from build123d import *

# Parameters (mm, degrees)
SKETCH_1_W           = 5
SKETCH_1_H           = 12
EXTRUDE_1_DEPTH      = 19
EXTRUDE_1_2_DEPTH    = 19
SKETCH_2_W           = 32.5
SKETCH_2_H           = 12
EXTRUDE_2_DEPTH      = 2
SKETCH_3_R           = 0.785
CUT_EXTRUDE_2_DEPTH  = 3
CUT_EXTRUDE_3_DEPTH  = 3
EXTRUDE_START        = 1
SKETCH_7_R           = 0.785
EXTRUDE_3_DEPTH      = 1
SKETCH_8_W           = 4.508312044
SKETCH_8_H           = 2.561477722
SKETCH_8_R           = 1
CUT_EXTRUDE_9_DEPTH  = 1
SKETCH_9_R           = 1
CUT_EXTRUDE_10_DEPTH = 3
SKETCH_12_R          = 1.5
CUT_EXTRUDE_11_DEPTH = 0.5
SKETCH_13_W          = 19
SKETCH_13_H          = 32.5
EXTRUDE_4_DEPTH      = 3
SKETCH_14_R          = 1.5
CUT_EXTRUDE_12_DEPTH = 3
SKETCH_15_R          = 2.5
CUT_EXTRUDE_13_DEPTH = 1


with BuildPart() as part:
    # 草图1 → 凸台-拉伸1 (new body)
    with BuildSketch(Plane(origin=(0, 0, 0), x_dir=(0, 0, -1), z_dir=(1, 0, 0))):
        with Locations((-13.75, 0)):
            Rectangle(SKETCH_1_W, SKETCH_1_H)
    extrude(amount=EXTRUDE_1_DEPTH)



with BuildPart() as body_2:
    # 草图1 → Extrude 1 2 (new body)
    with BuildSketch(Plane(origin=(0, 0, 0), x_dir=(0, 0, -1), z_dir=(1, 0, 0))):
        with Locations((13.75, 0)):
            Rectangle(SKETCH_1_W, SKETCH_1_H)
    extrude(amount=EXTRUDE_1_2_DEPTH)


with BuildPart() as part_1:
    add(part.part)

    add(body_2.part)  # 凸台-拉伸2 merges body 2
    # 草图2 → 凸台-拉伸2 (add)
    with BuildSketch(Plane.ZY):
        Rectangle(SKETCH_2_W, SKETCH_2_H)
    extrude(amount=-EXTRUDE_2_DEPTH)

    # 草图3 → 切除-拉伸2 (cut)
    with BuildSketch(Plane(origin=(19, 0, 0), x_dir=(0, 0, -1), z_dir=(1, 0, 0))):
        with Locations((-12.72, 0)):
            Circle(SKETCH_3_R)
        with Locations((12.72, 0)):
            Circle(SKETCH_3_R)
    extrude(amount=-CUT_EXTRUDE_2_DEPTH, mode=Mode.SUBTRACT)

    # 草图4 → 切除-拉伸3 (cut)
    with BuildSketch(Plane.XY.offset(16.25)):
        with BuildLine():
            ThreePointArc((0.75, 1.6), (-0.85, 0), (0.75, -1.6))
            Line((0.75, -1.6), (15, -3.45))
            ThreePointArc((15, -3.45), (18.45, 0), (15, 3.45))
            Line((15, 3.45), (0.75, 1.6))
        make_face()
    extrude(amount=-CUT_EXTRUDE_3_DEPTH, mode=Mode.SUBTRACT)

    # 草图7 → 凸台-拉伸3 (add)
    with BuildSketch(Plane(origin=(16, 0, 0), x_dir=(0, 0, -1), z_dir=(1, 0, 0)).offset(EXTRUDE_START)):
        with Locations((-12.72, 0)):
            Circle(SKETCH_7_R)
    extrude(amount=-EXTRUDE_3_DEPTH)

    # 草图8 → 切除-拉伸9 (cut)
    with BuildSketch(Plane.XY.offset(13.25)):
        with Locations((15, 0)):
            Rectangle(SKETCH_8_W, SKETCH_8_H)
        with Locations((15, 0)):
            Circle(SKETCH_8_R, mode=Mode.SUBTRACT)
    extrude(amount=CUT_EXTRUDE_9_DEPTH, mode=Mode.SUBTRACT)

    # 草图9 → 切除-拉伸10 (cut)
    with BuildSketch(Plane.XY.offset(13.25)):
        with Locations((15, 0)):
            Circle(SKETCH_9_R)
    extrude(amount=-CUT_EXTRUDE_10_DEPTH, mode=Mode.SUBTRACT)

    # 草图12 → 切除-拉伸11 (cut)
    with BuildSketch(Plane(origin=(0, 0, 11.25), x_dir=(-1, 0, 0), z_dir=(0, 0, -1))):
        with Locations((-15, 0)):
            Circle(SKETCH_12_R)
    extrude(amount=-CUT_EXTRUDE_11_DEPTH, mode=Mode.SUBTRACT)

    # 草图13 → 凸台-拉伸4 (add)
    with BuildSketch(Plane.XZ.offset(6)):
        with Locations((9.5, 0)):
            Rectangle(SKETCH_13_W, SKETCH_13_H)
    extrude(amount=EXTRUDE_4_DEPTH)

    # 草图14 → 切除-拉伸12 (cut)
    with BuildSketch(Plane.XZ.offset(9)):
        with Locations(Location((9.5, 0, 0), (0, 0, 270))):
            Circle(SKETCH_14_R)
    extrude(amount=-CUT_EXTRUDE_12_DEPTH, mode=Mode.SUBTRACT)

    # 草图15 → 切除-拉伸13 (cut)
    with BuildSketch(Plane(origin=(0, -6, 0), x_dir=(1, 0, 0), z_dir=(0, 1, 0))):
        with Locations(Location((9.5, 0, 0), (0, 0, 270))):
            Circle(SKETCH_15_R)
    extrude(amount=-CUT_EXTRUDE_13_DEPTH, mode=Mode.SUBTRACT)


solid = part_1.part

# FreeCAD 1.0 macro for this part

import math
import FreeCAD as App
import Part
import Sketcher
from FreeCAD import Vector


def add_polygon(sketch, points):
    """Adds a closed chain of lines whose ends are joined by coincident constraints."""
    first, n = sketch.GeometryCount, len(points)
    for a, b in zip(points, points[1:] + points[:1]):
        sketch.addGeometry(Part.LineSegment(App.Vector(*a, 0), App.Vector(*b, 0)), False)
    for i in range(n):
        sketch.addConstraint(Sketcher.Constraint("Coincident", first + i, 2, first + (i + 1) % n, 1))

doc = App.newDocument("Part")
body = doc.addObject("PartDesign::Body", "Body")

# Sketch on YZ plane
sketch1 = body.newObject("Sketcher::SketchObject", "Sketch")
sketch1.AttachmentSupport = (doc.getObject("YZ_Plane"), [""])
sketch1.MapMode = "FlatFace"
add_polygon(sketch1, [(6, 16), (-6, 16), (-6, 11), (6, 11)])  # lines 0-3
sketch1.addConstraint([
    Sketcher.Constraint("Horizontal", 0),
    Sketcher.Constraint("Vertical", 1),
    Sketcher.Constraint("Horizontal", 2),
    Sketcher.Constraint("Vertical", 3),
    Sketcher.Constraint("DistanceX", 0, 2, 0, 1, 12.0),
    Sketcher.Constraint("DistanceY", 1, 2, 1, 1, 5.0),
    Sketcher.Constraint("DistanceX", 0, 2, -1, 1, 6.0),
    Sketcher.Constraint("DistanceY", -1, 1, 0, 2, 16.25),
])
pad1 = body.newObject("PartDesign::Pad", "Pad")
pad1.Profile = sketch1
pad1.Length = 19
body2 = doc.addObject("PartDesign::Body", "Body001")

# Sketch on YZ plane
sketch2 = body2.newObject("Sketcher::SketchObject", "Sketch001")
sketch2.AttachmentSupport = (doc.getObject("YZ_Plane001"), [""])
sketch2.MapMode = "FlatFace"
add_polygon(sketch2, [(6, -11), (-6, -11), (-6, -16), (6, -16)])  # lines 0-3
sketch2.addConstraint([
    Sketcher.Constraint("Horizontal", 0),
    Sketcher.Constraint("Vertical", 1),
    Sketcher.Constraint("Horizontal", 2),
    Sketcher.Constraint("Vertical", 3),
    Sketcher.Constraint("DistanceX", 0, 2, 0, 1, 12.0),
    Sketcher.Constraint("DistanceY", 1, 2, 1, 1, 5.0),
    Sketcher.Constraint("DistanceX", 0, 2, -1, 1, 6.0),
    Sketcher.Constraint("DistanceY", 0, 2, -1, 1, 11.25),
])
pad2 = body2.newObject("PartDesign::Pad", "Pad001")
pad2.Profile = sketch2
pad2.Length = 19
body.AllowCompound = True
doc.recompute()

boolean = body.newObject("PartDesign::Boolean", "Boolean")
boolean.Type = "Fuse"
boolean.addObjects([body2])

# Sketch on YZ plane
sketch3 = body.newObject("Sketcher::SketchObject", "Sketch002")
sketch3.AttachmentSupport = (doc.getObject("YZ_Plane"), [""])
sketch3.MapMode = "FlatFace"
add_polygon(sketch3, [(6, -16), (-6, -16), (-6, 16), (6, 16)])  # lines 0-3
sketch3.addConstraint([
    Sketcher.Constraint("Horizontal", 0),
    Sketcher.Constraint("Vertical", 1),
    Sketcher.Constraint("Horizontal", 2),
    Sketcher.Constraint("Vertical", 3),
    Sketcher.Constraint("Symmetric", 0, 2, 2, 2, -1, 1),
    Sketcher.Constraint("DistanceX", 0, 2, 0, 1, 12.0),
    Sketcher.Constraint("DistanceY", 1, 1, 1, 2, 32.5),
])
pad3 = body.newObject("PartDesign::Pad", "Pad002")
pad3.Profile = sketch3
pad3.Length = 2

# Sketch on YZ plane
sketch4 = body.newObject("Sketcher::SketchObject", "Sketch003")
sketch4.AttachmentSupport = (doc.getObject("YZ_Plane"), [""])
sketch4.MapMode = "FlatFace"
sketch4.AttachmentOffset = App.Placement(Vector(0, 0, 19), App.Rotation())
sketch4.addGeometry([
    Part.Circle(Vector(0, 12.7, 0), Vector(0, 0, 1), 0.8),
    Part.Circle(Vector(0, -12.7, 0), Vector(0, 0, 1), 0.8),
], False)
sketch4.addConstraint([
    Sketcher.Constraint("Equal", 0, 1),
    Sketcher.Constraint("Symmetric", 0, 3, 1, 3, -1, 1),
    Sketcher.Constraint("PointOnObject", 0, 3, -2),
    Sketcher.Constraint("Diameter", 0, 1.57),
    Sketcher.Constraint("DistanceY", -1, 1, 0, 3, 12.72),
])
pocket1 = body.newObject("PartDesign::Pocket", "Pocket")
pocket1.Profile = sketch4
pocket1.Length = 3

# Sketch on XY plane
sketch5 = body.newObject("Sketcher::SketchObject", "Sketch004")
sketch5.AttachmentSupport = (doc.getObject("XY_Plane"), [""])
sketch5.MapMode = "FlatFace"
sketch5.AttachmentOffset = App.Placement(Vector(0, 0, 16.25), App.Rotation())
sketch5.addGeometry([
    Part.ArcOfCircle(Part.Circle(Vector(0.8, 0, 0), Vector(0, 0, 1), 1.6), math.radians(90), math.radians(270)),
    Part.LineSegment(Vector(0.8, -1.6, 0), Vector(15, -3.5, 0)),
    Part.ArcOfCircle(Part.Circle(Vector(15, 0, 0), Vector(0, 0, 1), 3.5), math.radians(-90), math.radians(90)),
    Part.LineSegment(Vector(15, 3.5, 0), Vector(0.8, 1.6, 0)),
], False)
sketch5.addConstraint([
    Sketcher.Constraint("Coincident", 0, 2, 1, 1),
    Sketcher.Constraint("Coincident", 1, 2, 2, 1),
    Sketcher.Constraint("Coincident", 2, 2, 3, 1),
    Sketcher.Constraint("Coincident", 3, 2, 0, 1),
    Sketcher.Constraint("Symmetric", 1, 2, 2, 2, -1),
    Sketcher.Constraint("Symmetric", 0, 2, 3, 2, -1),
    Sketcher.Constraint("Vertical", 2, 3, 1, 2),
    Sketcher.Constraint("Radius", 0, 1.6),
    Sketcher.Constraint("Radius", 2, 3.45),
    Sketcher.Constraint("DistanceX", -1, 1, 2, 3, 15.0),
    Sketcher.Constraint("DistanceX", -1, 1, 0, 3, 0.75),
    Sketcher.Constraint("DistanceX", -1, 1, 0, 2, 0.75),
])
pocket2 = body.newObject("PartDesign::Pocket", "Pocket001")
pocket2.Profile = sketch5
pocket2.Length = 3

# Sketch on YZ plane
sketch6 = body.newObject("Sketcher::SketchObject", "Sketch005")
sketch6.AttachmentSupport = (doc.getObject("YZ_Plane"), [""])
sketch6.MapMode = "FlatFace"
sketch6.AttachmentOffset = App.Placement(Vector(0, 0, 17), App.Rotation())
sketch6.addGeometry(Part.Circle(Vector(0, 12.7, 0), Vector(0, 0, 1), 0.8), False)
sketch6.addConstraint([
    Sketcher.Constraint("PointOnObject", 0, 3, -2),
    Sketcher.Constraint("Diameter", 0, 1.57),
    Sketcher.Constraint("DistanceY", -1, 1, 0, 3, 12.72),
])
pad4 = body.newObject("PartDesign::Pad", "Pad003")
pad4.Profile = sketch6
pad4.Length = 1
pad4.Reversed = True

# Sketch on XY plane
sketch7 = body.newObject("Sketcher::SketchObject", "Sketch006")
sketch7.AttachmentSupport = (doc.getObject("XY_Plane"), [""])
sketch7.MapMode = "FlatFace"
sketch7.AttachmentOffset = App.Placement(Vector(0, 0, 13.25), App.Rotation())
add_polygon(sketch7, [(12.7, 1.3), (12.7, -1.3), (17.3, -1.3), (17.3, 1.3)])  # lines 0-3
sketch7.addGeometry(Part.Circle(Vector(15, 0, 0), Vector(0, 0, 1), 1), False)  # 4
sketch7.addConstraint([
    Sketcher.Constraint("Vertical", 0),
    Sketcher.Constraint("Horizontal", 1),
    Sketcher.Constraint("Vertical", 2),
    Sketcher.Constraint("Horizontal", 3),
    Sketcher.Constraint("PointOnObject", 4, 3, -1),
    Sketcher.Constraint("Diameter", 4, 2.0),
    Sketcher.Constraint("DistanceX", -1, 1, 4, 3, 15.0),
    Sketcher.Constraint("DistanceX", 1, 1, 1, 2, 4.508312),
    Sketcher.Constraint("DistanceY", 0, 2, 0, 1, 2.561478),
    Sketcher.Constraint("DistanceY", 0, 2, -1, 1, 1.280739),
    Sketcher.Constraint("DistanceX", -1, 1, 0, 2, 12.745844),
])
pocket3 = body.newObject("PartDesign::Pocket", "Pocket002")
pocket3.Profile = sketch7
pocket3.Length = 1
pocket3.Reversed = True

# Sketch on XY plane
sketch8 = body.newObject("Sketcher::SketchObject", "Sketch007")
sketch8.AttachmentSupport = (doc.getObject("XY_Plane"), [""])
sketch8.MapMode = "FlatFace"
sketch8.AttachmentOffset = App.Placement(Vector(0, 0, 13.25), App.Rotation())
sketch8.addGeometry(Part.Circle(Vector(15, 0, 0), Vector(0, 0, 1), 1), False)
sketch8.addConstraint([
    Sketcher.Constraint("PointOnObject", 0, 3, -1),
    Sketcher.Constraint("Diameter", 0, 2.0),
    Sketcher.Constraint("DistanceX", -1, 1, 0, 3, 15.0),
])
pocket4 = body.newObject("PartDesign::Pocket", "Pocket003")
pocket4.Profile = sketch8
pocket4.Length = 3

# Sketch on XY plane
sketch9 = body.newObject("Sketcher::SketchObject", "Sketch008")
sketch9.AttachmentSupport = (doc.getObject("XY_Plane"), [""])
sketch9.MapMode = "FlatFace"
sketch9.AttachmentOffset = App.Placement(Vector(0, 0, 11.25), App.Rotation())
sketch9.addGeometry(Part.Circle(Vector(15, 0, 0), Vector(0, 0, 1), 1.5), False)
sketch9.addConstraint([
    Sketcher.Constraint("PointOnObject", 0, 3, -1),
    Sketcher.Constraint("Diameter", 0, 3.0),
    Sketcher.Constraint("DistanceX", -1, 1, 0, 3, 15.0),
])
pocket5 = body.newObject("PartDesign::Pocket", "Pocket004")
pocket5.Profile = sketch9
pocket5.Length = 0.5
pocket5.Reversed = True

# Sketch on XZ plane
sketch10 = body.newObject("Sketcher::SketchObject", "Sketch009")
sketch10.AttachmentSupport = (doc.getObject("XZ_Plane"), [""])
sketch10.MapMode = "FlatFace"
sketch10.AttachmentOffset = App.Placement(Vector(0, 0, 6), App.Rotation())
add_polygon(sketch10, [(0, 16), (0, -16), (19, -16), (19, 16)])  # lines 0-3
sketch10.addConstraint([
    Sketcher.Constraint("Vertical", 0),
    Sketcher.Constraint("Horizontal", 1),
    Sketcher.Constraint("Vertical", 2),
    Sketcher.Constraint("Horizontal", 3),
    Sketcher.Constraint("Symmetric", 0, 2, 3, 2, -1, 1),
    Sketcher.Constraint("DistanceX", 1, 1, 1, 2, 19.0),
    Sketcher.Constraint("DistanceY", 0, 2, 0, 1, 32.5),
])
pad5 = body.newObject("PartDesign::Pad", "Pad004")
pad5.Profile = sketch10
pad5.Length = 3

# Sketch on XZ plane
sketch11 = body.newObject("Sketcher::SketchObject", "Sketch010")
sketch11.AttachmentSupport = (doc.getObject("XZ_Plane"), [""])
sketch11.MapMode = "FlatFace"
sketch11.AttachmentOffset = App.Placement(Vector(0, 0, 9), App.Rotation())
sketch11.addGeometry(Part.Circle(Vector(9.5, 0, 0), Vector(0, 0, 1), 1.5), False)
sketch11.addConstraint([
    Sketcher.Constraint("PointOnObject", 0, 3, -1),
    Sketcher.Constraint("Diameter", 0, 3.0),
    Sketcher.Constraint("DistanceX", -1, 1, 0, 3, 9.5),
])
pocket6 = body.newObject("PartDesign::Pocket", "Pocket005")
pocket6.Profile = sketch11
pocket6.Length = 3

# Sketch on XZ plane
sketch12 = body.newObject("Sketcher::SketchObject", "Sketch011")
sketch12.AttachmentSupport = (doc.getObject("XZ_Plane"), [""])
sketch12.MapMode = "FlatFace"
sketch12.AttachmentOffset = App.Placement(Vector(0, 0, 6), App.Rotation())
sketch12.addGeometry(Part.Circle(Vector(9.5, 0, 0), Vector(0, 0, 1), 2.5), False)
sketch12.addConstraint([
    Sketcher.Constraint("PointOnObject", 0, 3, -1),
    Sketcher.Constraint("Diameter", 0, 5.0),
    Sketcher.Constraint("DistanceX", -1, 1, 0, 3, 9.5),
])
pocket7 = body.newObject("PartDesign::Pocket", "Pocket006")
pocket7.Profile = sketch12
pocket7.Length = 1
pocket7.Reversed = True

doc.recompute()
